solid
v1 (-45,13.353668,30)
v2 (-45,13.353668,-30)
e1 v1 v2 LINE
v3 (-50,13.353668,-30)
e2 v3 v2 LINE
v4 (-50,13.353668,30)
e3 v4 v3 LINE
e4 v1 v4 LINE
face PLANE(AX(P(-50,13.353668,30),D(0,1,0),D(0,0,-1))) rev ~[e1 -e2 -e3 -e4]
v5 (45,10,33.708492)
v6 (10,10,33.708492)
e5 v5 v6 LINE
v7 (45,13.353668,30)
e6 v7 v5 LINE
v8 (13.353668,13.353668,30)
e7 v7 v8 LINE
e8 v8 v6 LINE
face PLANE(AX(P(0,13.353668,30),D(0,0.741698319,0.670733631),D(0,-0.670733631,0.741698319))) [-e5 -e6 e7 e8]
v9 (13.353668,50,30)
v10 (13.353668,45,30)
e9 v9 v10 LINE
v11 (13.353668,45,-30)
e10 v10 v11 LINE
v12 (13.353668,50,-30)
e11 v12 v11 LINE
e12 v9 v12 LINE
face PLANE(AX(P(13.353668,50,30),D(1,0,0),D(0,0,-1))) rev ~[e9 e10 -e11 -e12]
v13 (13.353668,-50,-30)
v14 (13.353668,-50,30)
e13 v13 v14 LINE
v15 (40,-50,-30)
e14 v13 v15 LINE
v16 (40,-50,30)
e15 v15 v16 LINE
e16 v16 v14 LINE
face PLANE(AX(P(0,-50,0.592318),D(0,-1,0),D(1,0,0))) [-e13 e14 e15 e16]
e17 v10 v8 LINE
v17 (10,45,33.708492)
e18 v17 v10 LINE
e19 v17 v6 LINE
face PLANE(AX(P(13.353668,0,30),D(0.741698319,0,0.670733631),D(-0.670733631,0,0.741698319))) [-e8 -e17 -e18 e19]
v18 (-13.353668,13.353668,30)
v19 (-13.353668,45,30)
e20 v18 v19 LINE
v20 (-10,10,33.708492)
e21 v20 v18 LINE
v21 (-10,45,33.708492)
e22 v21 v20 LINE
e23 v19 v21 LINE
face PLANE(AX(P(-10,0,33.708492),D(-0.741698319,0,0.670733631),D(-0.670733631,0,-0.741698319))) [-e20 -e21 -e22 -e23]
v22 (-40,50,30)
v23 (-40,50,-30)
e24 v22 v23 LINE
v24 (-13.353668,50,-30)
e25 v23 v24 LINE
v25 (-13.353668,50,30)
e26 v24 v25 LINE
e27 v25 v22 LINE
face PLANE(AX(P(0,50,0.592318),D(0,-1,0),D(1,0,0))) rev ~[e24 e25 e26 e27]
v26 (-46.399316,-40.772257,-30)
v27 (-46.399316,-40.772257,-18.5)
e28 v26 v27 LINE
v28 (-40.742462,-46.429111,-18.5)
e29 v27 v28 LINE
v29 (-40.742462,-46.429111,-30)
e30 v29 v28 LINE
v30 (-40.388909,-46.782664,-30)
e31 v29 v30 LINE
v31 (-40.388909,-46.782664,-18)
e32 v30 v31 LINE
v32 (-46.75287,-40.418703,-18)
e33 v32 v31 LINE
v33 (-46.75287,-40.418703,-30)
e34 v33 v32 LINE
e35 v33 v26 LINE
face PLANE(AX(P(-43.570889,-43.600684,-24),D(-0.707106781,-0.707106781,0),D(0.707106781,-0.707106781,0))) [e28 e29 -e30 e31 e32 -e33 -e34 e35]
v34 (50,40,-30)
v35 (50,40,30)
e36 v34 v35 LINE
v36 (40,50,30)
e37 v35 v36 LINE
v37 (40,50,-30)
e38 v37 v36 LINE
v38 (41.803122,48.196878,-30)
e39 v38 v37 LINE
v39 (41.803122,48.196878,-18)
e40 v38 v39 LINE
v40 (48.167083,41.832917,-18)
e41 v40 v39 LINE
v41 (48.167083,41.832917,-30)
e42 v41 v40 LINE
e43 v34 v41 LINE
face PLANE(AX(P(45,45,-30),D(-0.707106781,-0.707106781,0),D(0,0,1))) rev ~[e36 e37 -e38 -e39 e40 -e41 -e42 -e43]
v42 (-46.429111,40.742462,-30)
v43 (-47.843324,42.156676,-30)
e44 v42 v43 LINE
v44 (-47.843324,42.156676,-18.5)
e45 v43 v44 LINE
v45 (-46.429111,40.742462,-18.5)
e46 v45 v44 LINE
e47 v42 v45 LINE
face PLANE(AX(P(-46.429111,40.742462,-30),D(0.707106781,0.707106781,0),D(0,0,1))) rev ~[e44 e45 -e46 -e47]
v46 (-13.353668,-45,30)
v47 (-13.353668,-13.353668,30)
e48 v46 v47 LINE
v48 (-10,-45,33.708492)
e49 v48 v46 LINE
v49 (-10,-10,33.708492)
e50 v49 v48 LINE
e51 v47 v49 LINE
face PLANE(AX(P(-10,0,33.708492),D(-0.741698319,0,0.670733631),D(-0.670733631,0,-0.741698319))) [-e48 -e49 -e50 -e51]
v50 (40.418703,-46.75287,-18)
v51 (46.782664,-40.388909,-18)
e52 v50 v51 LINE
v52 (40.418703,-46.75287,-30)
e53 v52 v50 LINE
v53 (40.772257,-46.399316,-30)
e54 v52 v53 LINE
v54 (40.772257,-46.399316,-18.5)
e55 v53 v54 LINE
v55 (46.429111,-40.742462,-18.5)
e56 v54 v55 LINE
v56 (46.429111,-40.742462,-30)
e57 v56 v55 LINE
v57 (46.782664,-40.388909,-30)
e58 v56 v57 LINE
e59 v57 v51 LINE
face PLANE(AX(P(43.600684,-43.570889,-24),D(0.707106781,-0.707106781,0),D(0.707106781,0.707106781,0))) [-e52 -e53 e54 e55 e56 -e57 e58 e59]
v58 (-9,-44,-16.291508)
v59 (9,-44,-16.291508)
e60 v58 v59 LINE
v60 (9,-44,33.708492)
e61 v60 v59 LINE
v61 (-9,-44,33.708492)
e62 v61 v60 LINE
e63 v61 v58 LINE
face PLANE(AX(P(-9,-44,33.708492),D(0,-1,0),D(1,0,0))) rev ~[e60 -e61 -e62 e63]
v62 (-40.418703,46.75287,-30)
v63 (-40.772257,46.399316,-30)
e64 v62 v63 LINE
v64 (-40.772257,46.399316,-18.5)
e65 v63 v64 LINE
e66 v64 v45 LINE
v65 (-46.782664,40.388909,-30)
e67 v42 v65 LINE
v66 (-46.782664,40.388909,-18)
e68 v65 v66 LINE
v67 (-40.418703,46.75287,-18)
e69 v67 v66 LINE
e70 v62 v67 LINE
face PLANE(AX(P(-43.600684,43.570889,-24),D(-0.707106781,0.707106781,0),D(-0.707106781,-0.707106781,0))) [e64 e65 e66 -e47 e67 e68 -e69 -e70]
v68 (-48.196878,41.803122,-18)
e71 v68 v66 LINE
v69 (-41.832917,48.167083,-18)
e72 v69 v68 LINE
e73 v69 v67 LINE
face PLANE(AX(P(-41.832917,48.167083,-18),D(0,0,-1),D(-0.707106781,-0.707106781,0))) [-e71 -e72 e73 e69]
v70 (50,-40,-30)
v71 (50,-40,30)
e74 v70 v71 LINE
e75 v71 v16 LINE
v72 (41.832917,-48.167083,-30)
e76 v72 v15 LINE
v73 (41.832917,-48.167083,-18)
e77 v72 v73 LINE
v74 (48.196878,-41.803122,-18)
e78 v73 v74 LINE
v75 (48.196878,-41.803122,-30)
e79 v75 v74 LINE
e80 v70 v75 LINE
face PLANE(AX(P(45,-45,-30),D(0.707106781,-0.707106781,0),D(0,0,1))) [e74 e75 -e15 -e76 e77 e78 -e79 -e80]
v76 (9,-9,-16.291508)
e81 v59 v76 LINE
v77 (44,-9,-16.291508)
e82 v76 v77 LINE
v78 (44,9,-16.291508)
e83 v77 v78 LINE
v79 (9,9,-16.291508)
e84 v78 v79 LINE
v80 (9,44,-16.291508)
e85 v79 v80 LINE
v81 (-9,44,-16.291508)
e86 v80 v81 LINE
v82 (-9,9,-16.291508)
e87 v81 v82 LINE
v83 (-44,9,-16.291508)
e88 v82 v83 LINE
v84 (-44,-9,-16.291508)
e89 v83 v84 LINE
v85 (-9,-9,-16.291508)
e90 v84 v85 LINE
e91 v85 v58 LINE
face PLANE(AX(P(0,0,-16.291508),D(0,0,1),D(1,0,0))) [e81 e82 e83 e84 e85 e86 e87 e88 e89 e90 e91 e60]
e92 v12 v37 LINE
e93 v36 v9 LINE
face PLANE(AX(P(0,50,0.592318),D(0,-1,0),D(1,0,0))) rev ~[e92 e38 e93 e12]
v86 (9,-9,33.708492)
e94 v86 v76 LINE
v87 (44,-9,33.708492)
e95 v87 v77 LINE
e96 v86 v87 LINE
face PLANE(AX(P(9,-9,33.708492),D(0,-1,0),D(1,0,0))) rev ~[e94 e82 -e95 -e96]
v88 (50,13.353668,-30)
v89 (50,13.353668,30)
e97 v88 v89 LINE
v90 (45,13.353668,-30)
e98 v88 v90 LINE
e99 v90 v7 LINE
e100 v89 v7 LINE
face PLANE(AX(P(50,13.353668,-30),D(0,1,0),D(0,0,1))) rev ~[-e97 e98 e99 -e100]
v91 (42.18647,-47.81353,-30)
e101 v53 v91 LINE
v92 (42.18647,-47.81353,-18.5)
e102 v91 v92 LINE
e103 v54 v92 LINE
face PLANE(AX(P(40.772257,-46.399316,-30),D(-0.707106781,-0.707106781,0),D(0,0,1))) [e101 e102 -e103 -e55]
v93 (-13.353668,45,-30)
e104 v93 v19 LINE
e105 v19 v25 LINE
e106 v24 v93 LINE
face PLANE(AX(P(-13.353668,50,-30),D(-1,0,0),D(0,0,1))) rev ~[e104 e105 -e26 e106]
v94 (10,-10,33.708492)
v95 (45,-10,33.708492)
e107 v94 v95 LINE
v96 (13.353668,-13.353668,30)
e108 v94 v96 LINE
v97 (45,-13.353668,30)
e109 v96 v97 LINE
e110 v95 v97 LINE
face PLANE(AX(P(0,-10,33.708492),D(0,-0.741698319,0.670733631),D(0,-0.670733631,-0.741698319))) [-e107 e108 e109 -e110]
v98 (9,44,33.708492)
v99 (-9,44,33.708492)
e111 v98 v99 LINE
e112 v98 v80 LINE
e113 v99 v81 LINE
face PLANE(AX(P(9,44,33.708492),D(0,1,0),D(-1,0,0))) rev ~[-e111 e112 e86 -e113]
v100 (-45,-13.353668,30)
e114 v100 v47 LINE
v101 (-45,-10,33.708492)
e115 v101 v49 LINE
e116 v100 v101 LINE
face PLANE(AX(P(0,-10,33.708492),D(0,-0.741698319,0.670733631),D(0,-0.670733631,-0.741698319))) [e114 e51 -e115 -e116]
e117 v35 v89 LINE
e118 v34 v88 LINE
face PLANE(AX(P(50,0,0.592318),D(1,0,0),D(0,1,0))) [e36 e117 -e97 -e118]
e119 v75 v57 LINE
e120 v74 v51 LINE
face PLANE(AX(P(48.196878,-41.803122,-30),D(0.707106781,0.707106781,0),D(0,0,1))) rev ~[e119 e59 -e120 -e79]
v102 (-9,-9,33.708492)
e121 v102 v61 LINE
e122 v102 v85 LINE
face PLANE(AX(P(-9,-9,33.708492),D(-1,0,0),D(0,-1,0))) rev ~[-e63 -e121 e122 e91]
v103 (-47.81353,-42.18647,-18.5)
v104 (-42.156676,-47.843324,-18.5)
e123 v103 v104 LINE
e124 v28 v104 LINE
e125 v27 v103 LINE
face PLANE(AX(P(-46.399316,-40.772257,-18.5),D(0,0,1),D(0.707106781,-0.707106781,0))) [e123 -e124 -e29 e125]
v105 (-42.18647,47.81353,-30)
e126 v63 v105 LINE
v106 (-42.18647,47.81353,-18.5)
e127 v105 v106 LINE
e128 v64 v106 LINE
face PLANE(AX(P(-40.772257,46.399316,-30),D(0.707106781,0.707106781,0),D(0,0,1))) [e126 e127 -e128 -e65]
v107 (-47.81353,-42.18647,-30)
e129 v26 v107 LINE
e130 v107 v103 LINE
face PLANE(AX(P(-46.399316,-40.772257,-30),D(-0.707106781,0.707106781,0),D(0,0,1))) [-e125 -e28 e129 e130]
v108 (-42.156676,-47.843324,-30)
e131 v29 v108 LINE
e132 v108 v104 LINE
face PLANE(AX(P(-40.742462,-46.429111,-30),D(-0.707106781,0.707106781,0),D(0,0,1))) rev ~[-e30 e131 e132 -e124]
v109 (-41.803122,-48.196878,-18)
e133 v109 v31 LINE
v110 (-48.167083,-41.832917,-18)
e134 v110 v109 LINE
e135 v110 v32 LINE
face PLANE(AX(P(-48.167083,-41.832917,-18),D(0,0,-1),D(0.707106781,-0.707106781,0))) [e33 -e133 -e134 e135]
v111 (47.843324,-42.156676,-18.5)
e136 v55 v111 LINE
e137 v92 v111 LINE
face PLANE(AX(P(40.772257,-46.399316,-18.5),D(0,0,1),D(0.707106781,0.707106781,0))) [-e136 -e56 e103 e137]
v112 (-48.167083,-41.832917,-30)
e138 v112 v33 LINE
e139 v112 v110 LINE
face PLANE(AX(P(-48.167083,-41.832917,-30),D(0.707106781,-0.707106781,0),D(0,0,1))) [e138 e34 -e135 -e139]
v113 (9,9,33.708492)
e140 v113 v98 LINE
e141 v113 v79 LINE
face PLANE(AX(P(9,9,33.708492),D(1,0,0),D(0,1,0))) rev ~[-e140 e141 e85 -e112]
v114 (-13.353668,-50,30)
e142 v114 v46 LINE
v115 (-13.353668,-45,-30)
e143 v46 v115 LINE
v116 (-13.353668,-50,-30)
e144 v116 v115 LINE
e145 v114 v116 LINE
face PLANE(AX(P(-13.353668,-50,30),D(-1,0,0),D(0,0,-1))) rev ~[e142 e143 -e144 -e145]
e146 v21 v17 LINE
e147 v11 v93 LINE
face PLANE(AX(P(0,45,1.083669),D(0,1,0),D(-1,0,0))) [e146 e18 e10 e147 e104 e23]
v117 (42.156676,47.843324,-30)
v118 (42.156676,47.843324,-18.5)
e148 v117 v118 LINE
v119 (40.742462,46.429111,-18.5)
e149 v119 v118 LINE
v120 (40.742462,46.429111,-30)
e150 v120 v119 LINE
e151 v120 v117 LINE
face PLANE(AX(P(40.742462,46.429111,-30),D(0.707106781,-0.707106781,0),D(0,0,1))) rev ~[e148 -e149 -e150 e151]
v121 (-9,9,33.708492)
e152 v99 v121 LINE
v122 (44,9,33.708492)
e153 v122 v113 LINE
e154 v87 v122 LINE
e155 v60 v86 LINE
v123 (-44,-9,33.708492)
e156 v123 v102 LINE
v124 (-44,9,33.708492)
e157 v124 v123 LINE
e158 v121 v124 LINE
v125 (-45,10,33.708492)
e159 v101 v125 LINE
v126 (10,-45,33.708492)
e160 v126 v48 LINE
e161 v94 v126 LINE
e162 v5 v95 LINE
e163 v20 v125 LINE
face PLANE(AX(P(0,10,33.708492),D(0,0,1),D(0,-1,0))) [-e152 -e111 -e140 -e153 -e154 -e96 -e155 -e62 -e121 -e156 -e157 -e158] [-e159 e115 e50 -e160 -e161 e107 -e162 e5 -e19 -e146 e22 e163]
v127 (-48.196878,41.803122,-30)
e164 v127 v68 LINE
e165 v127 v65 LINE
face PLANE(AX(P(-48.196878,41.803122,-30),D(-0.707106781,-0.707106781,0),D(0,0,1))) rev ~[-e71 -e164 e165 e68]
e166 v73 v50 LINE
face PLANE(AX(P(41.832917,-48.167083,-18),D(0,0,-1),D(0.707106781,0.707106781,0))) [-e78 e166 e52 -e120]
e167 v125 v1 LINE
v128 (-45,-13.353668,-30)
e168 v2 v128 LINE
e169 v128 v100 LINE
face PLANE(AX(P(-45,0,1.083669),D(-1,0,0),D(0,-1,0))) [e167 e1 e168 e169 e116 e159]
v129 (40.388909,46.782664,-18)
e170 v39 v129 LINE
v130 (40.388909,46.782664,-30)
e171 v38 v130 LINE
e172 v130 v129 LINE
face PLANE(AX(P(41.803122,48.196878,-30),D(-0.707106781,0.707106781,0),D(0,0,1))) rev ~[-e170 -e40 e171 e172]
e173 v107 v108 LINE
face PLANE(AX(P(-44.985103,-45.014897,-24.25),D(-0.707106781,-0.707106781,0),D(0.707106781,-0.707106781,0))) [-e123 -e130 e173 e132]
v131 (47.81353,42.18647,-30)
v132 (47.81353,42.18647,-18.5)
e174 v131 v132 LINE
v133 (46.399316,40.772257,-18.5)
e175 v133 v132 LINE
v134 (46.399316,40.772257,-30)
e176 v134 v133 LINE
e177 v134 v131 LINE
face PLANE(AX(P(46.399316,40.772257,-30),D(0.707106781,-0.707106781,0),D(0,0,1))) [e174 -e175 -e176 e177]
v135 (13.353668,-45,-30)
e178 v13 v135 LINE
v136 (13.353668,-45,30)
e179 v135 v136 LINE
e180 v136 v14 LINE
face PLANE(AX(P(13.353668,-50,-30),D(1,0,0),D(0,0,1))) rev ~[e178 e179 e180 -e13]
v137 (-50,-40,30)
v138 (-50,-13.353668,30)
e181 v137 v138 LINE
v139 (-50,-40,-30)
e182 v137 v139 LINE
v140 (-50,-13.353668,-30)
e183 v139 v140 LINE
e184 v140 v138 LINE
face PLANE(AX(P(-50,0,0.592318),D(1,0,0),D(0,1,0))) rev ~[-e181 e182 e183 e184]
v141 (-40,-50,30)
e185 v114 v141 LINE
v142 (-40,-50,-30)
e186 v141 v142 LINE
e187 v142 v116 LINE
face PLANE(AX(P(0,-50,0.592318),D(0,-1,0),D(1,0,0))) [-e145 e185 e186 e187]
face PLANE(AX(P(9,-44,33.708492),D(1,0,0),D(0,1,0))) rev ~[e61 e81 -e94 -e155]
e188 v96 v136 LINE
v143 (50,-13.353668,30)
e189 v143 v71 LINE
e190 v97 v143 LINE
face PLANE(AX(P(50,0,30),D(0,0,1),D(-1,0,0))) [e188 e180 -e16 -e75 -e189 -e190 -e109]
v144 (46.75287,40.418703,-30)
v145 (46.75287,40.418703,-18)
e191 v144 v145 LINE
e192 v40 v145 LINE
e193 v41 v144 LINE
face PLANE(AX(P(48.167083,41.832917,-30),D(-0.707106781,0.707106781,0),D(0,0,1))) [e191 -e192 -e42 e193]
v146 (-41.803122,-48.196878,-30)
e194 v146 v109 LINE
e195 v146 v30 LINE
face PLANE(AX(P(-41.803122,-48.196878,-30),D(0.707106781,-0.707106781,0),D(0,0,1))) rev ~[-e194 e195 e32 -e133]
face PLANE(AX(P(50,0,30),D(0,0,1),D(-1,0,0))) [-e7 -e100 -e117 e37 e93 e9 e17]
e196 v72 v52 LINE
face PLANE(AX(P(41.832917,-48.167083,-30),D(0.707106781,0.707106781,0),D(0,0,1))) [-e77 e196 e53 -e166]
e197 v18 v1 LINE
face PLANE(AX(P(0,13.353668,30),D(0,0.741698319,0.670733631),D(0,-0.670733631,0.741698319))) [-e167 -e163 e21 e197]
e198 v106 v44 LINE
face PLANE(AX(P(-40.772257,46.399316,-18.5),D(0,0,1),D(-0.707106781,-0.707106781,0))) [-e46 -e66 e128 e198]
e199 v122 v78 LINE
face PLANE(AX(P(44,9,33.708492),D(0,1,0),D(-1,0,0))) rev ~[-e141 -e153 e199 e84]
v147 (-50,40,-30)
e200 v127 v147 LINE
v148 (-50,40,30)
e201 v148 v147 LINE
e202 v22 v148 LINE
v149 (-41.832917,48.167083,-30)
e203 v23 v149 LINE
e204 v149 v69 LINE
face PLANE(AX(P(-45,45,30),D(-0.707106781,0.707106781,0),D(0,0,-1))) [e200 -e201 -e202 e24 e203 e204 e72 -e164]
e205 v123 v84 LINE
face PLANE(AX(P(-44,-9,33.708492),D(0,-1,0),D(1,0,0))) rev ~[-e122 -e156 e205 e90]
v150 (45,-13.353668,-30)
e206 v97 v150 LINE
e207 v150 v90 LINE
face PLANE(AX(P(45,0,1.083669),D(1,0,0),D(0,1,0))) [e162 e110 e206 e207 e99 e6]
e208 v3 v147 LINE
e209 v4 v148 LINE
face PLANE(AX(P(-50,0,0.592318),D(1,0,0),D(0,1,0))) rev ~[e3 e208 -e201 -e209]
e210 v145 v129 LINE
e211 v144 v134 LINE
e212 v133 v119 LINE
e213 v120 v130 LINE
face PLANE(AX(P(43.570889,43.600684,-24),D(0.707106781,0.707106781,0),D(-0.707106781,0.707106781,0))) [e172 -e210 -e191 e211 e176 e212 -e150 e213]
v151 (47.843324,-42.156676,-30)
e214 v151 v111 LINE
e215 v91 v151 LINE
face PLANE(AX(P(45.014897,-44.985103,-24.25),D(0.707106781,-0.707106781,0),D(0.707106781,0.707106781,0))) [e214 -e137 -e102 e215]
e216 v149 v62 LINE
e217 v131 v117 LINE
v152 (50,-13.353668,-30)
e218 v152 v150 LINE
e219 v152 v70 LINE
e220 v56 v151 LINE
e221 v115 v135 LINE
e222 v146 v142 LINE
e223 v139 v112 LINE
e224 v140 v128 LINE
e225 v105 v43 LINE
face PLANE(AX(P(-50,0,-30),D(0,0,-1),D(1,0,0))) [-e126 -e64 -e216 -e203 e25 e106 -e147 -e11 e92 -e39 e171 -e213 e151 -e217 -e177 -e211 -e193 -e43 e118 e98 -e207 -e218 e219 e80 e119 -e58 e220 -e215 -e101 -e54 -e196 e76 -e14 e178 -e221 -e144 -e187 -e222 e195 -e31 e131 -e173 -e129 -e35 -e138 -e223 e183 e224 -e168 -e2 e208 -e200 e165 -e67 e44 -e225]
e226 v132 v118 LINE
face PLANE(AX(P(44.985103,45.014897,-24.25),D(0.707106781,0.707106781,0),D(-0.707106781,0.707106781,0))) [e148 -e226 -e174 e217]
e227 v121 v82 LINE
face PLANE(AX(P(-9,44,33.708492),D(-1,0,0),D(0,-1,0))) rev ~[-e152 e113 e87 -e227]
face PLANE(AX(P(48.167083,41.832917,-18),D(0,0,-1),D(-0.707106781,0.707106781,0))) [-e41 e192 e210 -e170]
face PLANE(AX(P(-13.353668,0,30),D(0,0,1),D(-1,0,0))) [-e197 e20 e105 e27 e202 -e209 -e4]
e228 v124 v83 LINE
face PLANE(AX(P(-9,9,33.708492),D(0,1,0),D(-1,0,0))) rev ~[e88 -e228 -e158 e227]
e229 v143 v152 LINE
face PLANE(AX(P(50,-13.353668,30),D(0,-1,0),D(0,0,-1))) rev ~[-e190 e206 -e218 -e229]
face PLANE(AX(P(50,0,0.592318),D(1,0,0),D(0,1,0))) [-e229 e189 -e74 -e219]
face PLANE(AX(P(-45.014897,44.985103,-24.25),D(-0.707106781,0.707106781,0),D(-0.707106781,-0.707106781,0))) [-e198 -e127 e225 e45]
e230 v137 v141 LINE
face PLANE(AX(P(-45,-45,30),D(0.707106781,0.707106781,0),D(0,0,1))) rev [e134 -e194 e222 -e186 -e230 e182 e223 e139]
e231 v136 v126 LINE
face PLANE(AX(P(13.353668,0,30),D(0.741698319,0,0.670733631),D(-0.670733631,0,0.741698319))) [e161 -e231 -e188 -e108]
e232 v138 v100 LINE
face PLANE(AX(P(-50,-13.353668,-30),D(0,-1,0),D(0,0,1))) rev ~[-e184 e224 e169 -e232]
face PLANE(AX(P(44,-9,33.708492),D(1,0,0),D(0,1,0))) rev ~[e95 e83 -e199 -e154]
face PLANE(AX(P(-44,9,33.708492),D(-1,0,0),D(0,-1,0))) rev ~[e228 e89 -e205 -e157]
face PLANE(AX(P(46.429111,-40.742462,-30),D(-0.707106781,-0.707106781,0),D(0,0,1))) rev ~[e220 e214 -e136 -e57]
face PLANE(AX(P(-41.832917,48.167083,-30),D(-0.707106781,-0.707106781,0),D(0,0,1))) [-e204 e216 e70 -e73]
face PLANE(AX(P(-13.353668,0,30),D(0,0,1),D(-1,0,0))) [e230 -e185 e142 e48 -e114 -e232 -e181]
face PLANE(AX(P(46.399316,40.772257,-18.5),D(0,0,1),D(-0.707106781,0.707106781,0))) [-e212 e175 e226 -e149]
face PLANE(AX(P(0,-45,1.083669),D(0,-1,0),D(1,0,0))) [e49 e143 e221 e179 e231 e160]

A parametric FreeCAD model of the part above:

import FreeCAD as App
import Part
import Sketcher

V = App.Vector
Q = App.Units.Quantity


def edges_at(feature, points):
    """Names of the edges that pass closest to the given points."""
    edges = feature.Shape.Edges
    near = lambda p: min(range(len(edges)), key=lambda i: edges[i].distToShape(Part.Vertex(*p))[0])
    return sorted({f"Edge{near(p) + 1}" for p in points})

doc = App.newDocument("Part")
body = doc.addObject("PartDesign::Body", "Body")

sketch1 = body.newObject("Sketcher::SketchObject", "Sketch")
sketch1.AttachmentSupport = (doc.getObject("XZ_Plane"), [""])
sketch1.MapMode = "FlatFace"
sketch1.addGeometry([
    Part.LineSegment(V(-50, -30, 0), V(50, -30, 0)),
    Part.LineSegment(V(50, -30, 0), V(50, 30, 0)),
    Part.LineSegment(V(50, 30, 0), V(13.353668, 30, 0)),
    Part.LineSegment(V(13.353668, 30, 0), V(10, 33.708492, 0)),
    Part.LineSegment(V(10, 33.708492, 0), V(-10, 33.708492, 0)),
    Part.LineSegment(V(-10, 33.708492, 0), V(-13.353668, 30, 0)),
    Part.LineSegment(V(-13.353668, 30, 0), V(-50, 30, 0)),
    Part.LineSegment(V(-50, 30, 0), V(-50, -30, 0)),
], False)
sketch1.addConstraint([
    Sketcher.Constraint("Coincident", 0, 2, 1, 1),
    Sketcher.Constraint("Coincident", 1, 2, 2, 1),
    Sketcher.Constraint("Coincident", 2, 2, 3, 1),
    Sketcher.Constraint("Coincident", 3, 2, 4, 1),
    Sketcher.Constraint("Coincident", 4, 2, 5, 1),
    Sketcher.Constraint("Coincident", 5, 2, 6, 1),
    Sketcher.Constraint("Coincident", 6, 2, 7, 1),
    Sketcher.Constraint("Coincident", 7, 2, 0, 1),
    Sketcher.Constraint("Horizontal", 0),
    Sketcher.Constraint("Vertical", 1),
    Sketcher.Constraint("Horizontal", 2),
    Sketcher.Constraint("Horizontal", 4),
    Sketcher.Constraint("Horizontal", 6),
    Sketcher.Constraint("Vertical", 7),
    Sketcher.Constraint("Symmetric", 0, 2, 6, 2, -1, 1),
    Sketcher.Constraint("Symmetric", 2, 2, 5, 2, -2),
    Sketcher.Constraint("Equal", 3, 5),
    Sketcher.Constraint("DistanceX", 0, 1, 0, 2, Q("100 mm")),
    Sketcher.Constraint("DistanceX", 4, 2, 4, 1, Q("20 mm")),
    Sketcher.Constraint("DistanceY", 1, 1, 1, 2, Q("60 mm")),
    Sketcher.Constraint("Distance", 3, Q("5 mm")),
    Sketcher.Constraint("DistanceX", 2, 2, 2, 1, Q("36.646332 mm")),
])
pad1 = body.newObject("PartDesign::Pad", "Pad")
pad1.Profile = sketch1
pad1.Length = 100
pad1.Midplane = True

sketch2 = body.newObject("Sketcher::SketchObject", "Sketch001")
sketch2.AttachmentSupport = (doc.getObject("YZ_Plane"), [""])
sketch2.MapMode = "FlatFace"
sketch2.addGeometry([
    Part.LineSegment(V(10, 33.708492, 0), V(-10, 33.708492, 0)),
    Part.LineSegment(V(-10, 33.708492, 0), V(-13.353668, 30, 0)),
    Part.LineSegment(V(-13.353668, 30, 0), V(-50, 30, 0)),
    Part.LineSegment(V(-50, 30, 0), V(-50, -30, 0)),
    Part.LineSegment(V(-50, -30, 0), V(50, -30, 0)),
    Part.LineSegment(V(50, -30, 0), V(50, 30, 0)),
    Part.LineSegment(V(50, 30, 0), V(13.353668, 30, 0)),
    Part.LineSegment(V(13.353668, 30, 0), V(10, 33.708492, 0)),
], False)
sketch2.addConstraint([
    Sketcher.Constraint("Coincident", 0, 2, 1, 1),
    Sketcher.Constraint("Coincident", 1, 2, 2, 1),
    Sketcher.Constraint("Coincident", 2, 2, 3, 1),
    Sketcher.Constraint("Coincident", 3, 2, 4, 1),
    Sketcher.Constraint("Coincident", 4, 2, 5, 1),
    Sketcher.Constraint("Coincident", 5, 2, 6, 1),
    Sketcher.Constraint("Coincident", 6, 2, 7, 1),
    Sketcher.Constraint("Coincident", 7, 2, 0, 1),
    Sketcher.Constraint("Horizontal", 0),
    Sketcher.Constraint("Horizontal", 2),
    Sketcher.Constraint("Vertical", 3),
    Sketcher.Constraint("Horizontal", 4),
    Sketcher.Constraint("Vertical", 5),
    Sketcher.Constraint("Horizontal", 6),
    Sketcher.Constraint("Symmetric", 2, 2, 4, 2, -1, 1),
    Sketcher.Constraint("Symmetric", 1, 2, 6, 2, -2),
    Sketcher.Constraint("Equal", 1, 7),
    Sketcher.Constraint("DistanceX", 0, 2, 0, 1, Q("20 mm")),
    Sketcher.Constraint("DistanceX", 4, 1, 4, 2, Q("100 mm")),
    Sketcher.Constraint("DistanceY", 3, 2, 3, 1, Q("60 mm")),
    Sketcher.Constraint("Distance", 1, Q("5 mm")),
    Sketcher.Constraint("DistanceX", 2, 2, 2, 1, Q("36.646332 mm")),
])
pad2 = body.newObject("PartDesign::Pad", "Pad001")
pad2.Profile = sketch2
pad2.Length = 100
pad2.Midplane = True

sketch3 = body.newObject("Sketcher::SketchObject", "Sketch002")
sketch3.AttachmentSupport = (doc.getObject("YZ_Plane"), [""])
sketch3.MapMode = "FlatFace"
sketch3.AttachmentOffset = App.Placement(V(0, 0, -50), App.Rotation())
sketch3.addGeometry([
    Part.LineSegment(V(-10, 33.708492, 0), V(10, 33.708492, 0)),
    Part.LineSegment(V(10, 33.708492, 0), V(13.353668, 30, 0)),
    Part.LineSegment(V(13.353668, 30, 0), V(13.353668, -30, 0)),
    Part.LineSegment(V(13.353668, -30, 0), V(-13.353668, -30, 0)),
    Part.LineSegment(V(-13.353668, -30, 0), V(-13.353668, 30, 0)),
    Part.LineSegment(V(-13.353668, 30, 0), V(-10, 33.708492, 0)),
], False)
sketch3.addConstraint([
    Sketcher.Constraint("Coincident", 0, 2, 1, 1),
    Sketcher.Constraint("Coincident", 1, 2, 2, 1),
    Sketcher.Constraint("Coincident", 2, 2, 3, 1),
    Sketcher.Constraint("Coincident", 3, 2, 4, 1),
    Sketcher.Constraint("Coincident", 4, 2, 5, 1),
    Sketcher.Constraint("Coincident", 5, 2, 0, 1),
    Sketcher.Constraint("Horizontal", 0),
    Sketcher.Constraint("Vertical", 2),
    Sketcher.Constraint("Horizontal", 3),
    Sketcher.Constraint("Vertical", 4),
    Sketcher.Constraint("Symmetric", 1, 2, 3, 2, -1, 1),
    Sketcher.Constraint("Horizontal", 1, 2, 4, 2),
    Sketcher.Constraint("Equal", 1, 5),
    Sketcher.Constraint("DistanceX", 0, 1, 0, 2, Q("20 mm")),
    Sketcher.Constraint("DistanceY", 2, 2, 2, 1, Q("60 mm")),
    Sketcher.Constraint("Distance", 1, Q("5 mm")),
    Sketcher.Constraint("DistanceX", 3, 2, 3, 1, Q("26.707336 mm")),
])
pocket1 = body.newObject("PartDesign::Pocket", "Pocket")
pocket1.Profile = sketch3
pocket1.Length = 5
pocket1.Reversed = True

sketch4 = body.newObject("Sketcher::SketchObject", "Sketch003")
sketch4.AttachmentSupport = (doc.getObject("XZ_Plane"), [""])
sketch4.MapMode = "FlatFace"
sketch4.AttachmentOffset = App.Placement(V(0, 0, 50), App.Rotation())
sketch4.addGeometry([
    Part.LineSegment(V(-10, 33.708492, 0), V(-13.353668, 30, 0)),
    Part.LineSegment(V(-13.353668, 30, 0), V(-13.353668, -30, 0)),
    Part.LineSegment(V(-13.353668, -30, 0), V(13.353668, -30, 0)),
    Part.LineSegment(V(13.353668, -30, 0), V(13.353668, 30, 0)),
    Part.LineSegment(V(13.353668, 30, 0), V(10, 33.708492, 0)),
    Part.LineSegment(V(10, 33.708492, 0), V(-10, 33.708492, 0)),
], False)
sketch4.addConstraint([
    Sketcher.Constraint("Coincident", 0, 2, 1, 1),
    Sketcher.Constraint("Coincident", 1, 2, 2, 1),
    Sketcher.Constraint("Coincident", 2, 2, 3, 1),
    Sketcher.Constraint("Coincident", 3, 2, 4, 1),
    Sketcher.Constraint("Coincident", 4, 2, 5, 1),
    Sketcher.Constraint("Coincident", 5, 2, 0, 1),
    Sketcher.Constraint("Vertical", 1),
    Sketcher.Constraint("Horizontal", 2),
    Sketcher.Constraint("Vertical", 3),
    Sketcher.Constraint("Horizontal", 5),
    Sketcher.Constraint("Symmetric", 0, 2, 2, 2, -1, 1),
    Sketcher.Constraint("Horizontal", 0, 2, 3, 2),
    Sketcher.Constraint("Equal", 0, 4),
    Sketcher.Constraint("DistanceX", 5, 2, 5, 1, Q("20 mm")),
    Sketcher.Constraint("DistanceY", 1, 2, 1, 1, Q("60 mm")),
    Sketcher.Constraint("Distance", 0, Q("5 mm")),
    Sketcher.Constraint("DistanceX", 2, 1, 2, 2, Q("26.707336 mm")),
])
pocket2 = body.newObject("PartDesign::Pocket", "Pocket001")
pocket2.Profile = sketch4
pocket2.Length = 5

sketch5 = body.newObject("Sketcher::SketchObject", "Sketch004")
sketch5.AttachmentSupport = (doc.getObject("YZ_Plane"), [""])
sketch5.MapMode = "FlatFace"
sketch5.AttachmentOffset = App.Placement(V(0, 0, 50), App.Rotation())
sketch5.addGeometry([
    Part.LineSegment(V(-10, 33.708492, 0), V(-13.353668, 30, 0)),
    Part.LineSegment(V(-13.353668, 30, 0), V(-13.353668, -30, 0)),
    Part.LineSegment(V(-13.353668, -30, 0), V(13.353668, -30, 0)),
    Part.LineSegment(V(13.353668, -30, 0), V(13.353668, 30, 0)),
    Part.LineSegment(V(13.353668, 30, 0), V(10, 33.708492, 0)),
    Part.LineSegment(V(10, 33.708492, 0), V(-10, 33.708492, 0)),
], False)
sketch5.addConstraint([
    Sketcher.Constraint("Coincident", 0, 2, 1, 1),
    Sketcher.Constraint("Coincident", 1, 2, 2, 1),
    Sketcher.Constraint("Coincident", 2, 2, 3, 1),
    Sketcher.Constraint("Coincident", 3, 2, 4, 1),
    Sketcher.Constraint("Coincident", 4, 2, 5, 1),
    Sketcher.Constraint("Coincident", 5, 2, 0, 1),
    Sketcher.Constraint("Vertical", 1),
    Sketcher.Constraint("Horizontal", 2),
    Sketcher.Constraint("Vertical", 3),
    Sketcher.Constraint("Horizontal", 5),
    Sketcher.Constraint("Symmetric", 0, 2, 2, 2, -1, 1),
    Sketcher.Constraint("Horizontal", 0, 2, 3, 2),
    Sketcher.Constraint("Equal", 0, 4),
    Sketcher.Constraint("DistanceX", 5, 2, 5, 1, Q("20 mm")),
    Sketcher.Constraint("DistanceY", 1, 2, 1, 1, Q("60 mm")),
    Sketcher.Constraint("Distance", 0, Q("5 mm")),
    Sketcher.Constraint("DistanceX", 2, 1, 2, 2, Q("26.707336 mm")),
])
pocket3 = body.newObject("PartDesign::Pocket", "Pocket002")
pocket3.Profile = sketch5
pocket3.Length = 5

sketch6 = body.newObject("Sketcher::SketchObject", "Sketch005")
sketch6.AttachmentSupport = (doc.getObject("XZ_Plane"), [""])
sketch6.MapMode = "FlatFace"
sketch6.AttachmentOffset = App.Placement(V(0, 0, -50), App.Rotation())
sketch6.addGeometry([
    Part.LineSegment(V(10, 33.708492, 0), V(13.353668, 30, 0)),
    Part.LineSegment(V(13.353668, 30, 0), V(13.353668, -30, 0)),
    Part.LineSegment(V(13.353668, -30, 0), V(-13.353668, -30, 0)),
    Part.LineSegment(V(-13.353668, -30, 0), V(-13.353668, 30, 0)),
    Part.LineSegment(V(-13.353668, 30, 0), V(-10, 33.708492, 0)),
    Part.LineSegment(V(-10, 33.708492, 0), V(10, 33.708492, 0)),
], False)
sketch6.addConstraint([
    Sketcher.Constraint("Coincident", 0, 2, 1, 1),
    Sketcher.Constraint("Coincident", 1, 2, 2, 1),
    Sketcher.Constraint("Coincident", 2, 2, 3, 1),
    Sketcher.Constraint("Coincident", 3, 2, 4, 1),
    Sketcher.Constraint("Coincident", 4, 2, 5, 1),
    Sketcher.Constraint("Coincident", 5, 2, 0, 1),
    Sketcher.Constraint("Vertical", 1),
    Sketcher.Constraint("Horizontal", 2),
    Sketcher.Constraint("Vertical", 3),
    Sketcher.Constraint("Horizontal", 5),
    Sketcher.Constraint("Symmetric", 0, 2, 2, 2, -1, 1),
    Sketcher.Constraint("Horizontal", 0, 2, 3, 2),
    Sketcher.Constraint("Equal", 0, 4),
    Sketcher.Constraint("DistanceX", 5, 1, 5, 2, Q("20 mm")),
    Sketcher.Constraint("DistanceY", 1, 2, 1, 1, Q("60 mm")),
    Sketcher.Constraint("Distance", 0, Q("5 mm")),
    Sketcher.Constraint("DistanceX", 2, 2, 2, 1, Q("26.707336 mm")),
])
pocket4 = body.newObject("PartDesign::Pocket", "Pocket003")
pocket4.Profile = sketch6
pocket4.Length = 5
pocket4.Reversed = True
doc.recompute()

chamfer = body.newObject("PartDesign::Chamfer", "Chamfer")
chamfer.Base = (pocket4, edges_at(pocket4, [
    (50, -50, 0),
    (50, 50, 0),
    (-50, 50, 0),
    (-50, -50, 0),
]))
chamfer.Size = 10

sketch7 = body.newObject("Sketcher::SketchObject", "Sketch006")
sketch7.Placement = App.Placement(V(-45, 45, 0), App.Rotation(V(-0.707106781, -0.707106781, 0), V(0, 0, 0.999999999), V(-0.707106781, 0.707106781, 0), "ZXY"))
sketch7.addGeometry([
    Part.LineSegment(V(-4.478932, -18, 0), V(-4.478932, -30, 0)),
    Part.LineSegment(V(-4.478932, -30, 0), V(4.521068, -30, 0)),
    Part.LineSegment(V(4.521068, -30, 0), V(4.521068, -18, 0)),
    Part.LineSegment(V(4.521068, -18, 0), V(-4.478932, -18, 0)),
], False)
sketch7.addConstraint([
    Sketcher.Constraint("Coincident", 0, 2, 1, 1),
    Sketcher.Constraint("Coincident", 1, 2, 2, 1),
    Sketcher.Constraint("Coincident", 2, 2, 3, 1),
    Sketcher.Constraint("Coincident", 3, 2, 0, 1),
    Sketcher.Constraint("Vertical", 0),
    Sketcher.Constraint("Horizontal", 1),
    Sketcher.Constraint("Vertical", 2),
    Sketcher.Constraint("Horizontal", 3),
    Sketcher.Constraint("DistanceX", 1, 1, 1, 2, Q("9 mm")),
    Sketcher.Constraint("DistanceY", 0, 2, 0, 1, Q("12 mm")),
    Sketcher.Constraint("DistanceY", 0, 2, -1, 1, Q("30 mm")),
    Sketcher.Constraint("DistanceX", 0, 2, -1, 1, Q("4.478932 mm")),
])
pocket5 = body.newObject("PartDesign::Pocket", "Pocket004")
pocket5.Profile = sketch7
pocket5.Length = 2

sketch8 = body.newObject("Sketcher::SketchObject", "Sketch007")
sketch8.Placement = App.Placement(V(-43.585786, 43.585786, 0), App.Rotation(V(-0.707106781, -0.707106781, 0), V(0, 0, 0.999999999), V(-0.707106781, 0.707106781, 0), "ZXY"))
sketch8.addGeometry([
    Part.LineSegment(V(-3.978932, -18.5, 0), V(-3.978932, -30, 0)),
    Part.LineSegment(V(-3.978932, -30, 0), V(4.021068, -30, 0)),
    Part.LineSegment(V(4.021068, -30, 0), V(4.021068, -18.5, 0)),
    Part.LineSegment(V(4.021068, -18.5, 0), V(-3.978932, -18.5, 0)),
], False)
sketch8.addConstraint([
    Sketcher.Constraint("Coincident", 0, 2, 1, 1),
    Sketcher.Constraint("Coincident", 1, 2, 2, 1),
    Sketcher.Constraint("Coincident", 2, 2, 3, 1),
    Sketcher.Constraint("Coincident", 3, 2, 0, 1),
    Sketcher.Constraint("Vertical", 0),
    Sketcher.Constraint("Horizontal", 1),
    Sketcher.Constraint("Vertical", 2),
    Sketcher.Constraint("Horizontal", 3),
    Sketcher.Constraint("DistanceX", 1, 1, 1, 2, Q("8 mm")),
    Sketcher.Constraint("DistanceY", 0, 2, 0, 1, Q("11.5 mm")),
    Sketcher.Constraint("DistanceY", 0, 2, -1, 1, Q("30 mm")),
    Sketcher.Constraint("DistanceX", 0, 2, -1, 1, Q("3.978932 mm")),
])
pad3 = body.newObject("PartDesign::Pad", "Pad002")
pad3.Profile = sketch8
pad3.Length = 2

sketch9 = body.newObject("Sketcher::SketchObject", "Sketch008")
sketch9.Placement = App.Placement(V(-45, -45, 0), App.Rotation(V(0.707106781, -0.707106781, 0), V(0, 0, 0.999999999), V(-0.707106781, -0.707106781, 0), "ZXY"))
sketch9.addGeometry([
    Part.LineSegment(V(-4.478932, -18, 0), V(-4.478932, -30, 0)),
    Part.LineSegment(V(-4.478932, -30, 0), V(4.521068, -30, 0)),
    Part.LineSegment(V(4.521068, -30, 0), V(4.521068, -18, 0)),
    Part.LineSegment(V(4.521068, -18, 0), V(-4.478932, -18, 0)),
], False)
sketch9.addConstraint([
    Sketcher.Constraint("Coincident", 0, 2, 1, 1),
    Sketcher.Constraint("Coincident", 1, 2, 2, 1),
    Sketcher.Constraint("Coincident", 2, 2, 3, 1),
    Sketcher.Constraint("Coincident", 3, 2, 0, 1),
    Sketcher.Constraint("Vertical", 0),
    Sketcher.Constraint("Horizontal", 1),
    Sketcher.Constraint("Vertical", 2),
    Sketcher.Constraint("Horizontal", 3),
    Sketcher.Constraint("DistanceX", 1, 1, 1, 2, Q("9 mm")),
    Sketcher.Constraint("DistanceY", 0, 2, 0, 1, Q("12 mm")),
    Sketcher.Constraint("DistanceY", 0, 2, -1, 1, Q("30 mm")),
    Sketcher.Constraint("DistanceX", 0, 2, -1, 1, Q("4.478932 mm")),
])
pocket6 = body.newObject("PartDesign::Pocket", "Pocket005")
pocket6.Profile = sketch9
pocket6.Length = 2

sketch10 = body.newObject("Sketcher::SketchObject", "Sketch009")
sketch10.Placement = App.Placement(V(45, -45, 0), App.Rotation(V(0.707106781, 0.707106781, 0), V(0, 0, 0.999999999), V(0.707106781, -0.707106781, 0), "ZXY"))
sketch10.addGeometry([
    Part.LineSegment(V(-4.478932, -18, 0), V(-4.478932, -30, 0)),
    Part.LineSegment(V(-4.478932, -30, 0), V(4.521068, -30, 0)),
    Part.LineSegment(V(4.521068, -30, 0), V(4.521068, -18, 0)),
    Part.LineSegment(V(4.521068, -18, 0), V(-4.478932, -18, 0)),
], False)
sketch10.addConstraint([
    Sketcher.Constraint("Coincident", 0, 2, 1, 1),
    Sketcher.Constraint("Coincident", 1, 2, 2, 1),
    Sketcher.Constraint("Coincident", 2, 2, 3, 1),
    Sketcher.Constraint("Coincident", 3, 2, 0, 1),
    Sketcher.Constraint("Vertical", 0),
    Sketcher.Constraint("Horizontal", 1),
    Sketcher.Constraint("Vertical", 2),
    Sketcher.Constraint("Horizontal", 3),
    Sketcher.Constraint("DistanceX", 1, 1, 1, 2, Q("9 mm")),
    Sketcher.Constraint("DistanceY", 0, 2, 0, 1, Q("12 mm")),
    Sketcher.Constraint("DistanceY", 0, 2, -1, 1, Q("30 mm")),
    Sketcher.Constraint("DistanceX", 0, 2, -1, 1, Q("4.478932 mm")),
])
pocket7 = body.newObject("PartDesign::Pocket", "Pocket006")
pocket7.Profile = sketch10
pocket7.Length = 2

sketch11 = body.newObject("Sketcher::SketchObject", "Sketch010")
sketch11.Placement = App.Placement(V(43.585786, -43.585786, 0), App.Rotation(V(0.707106781, 0.707106781, 0), V(0, 0, 0.999999999), V(0.707106781, -0.707106781, 0), "ZXY"))
sketch11.addGeometry([
    Part.LineSegment(V(-3.978932, -18.5, 0), V(-3.978932, -30, 0)),
    Part.LineSegment(V(-3.978932, -30, 0), V(4.021068, -30, 0)),
    Part.LineSegment(V(4.021068, -30, 0), V(4.021068, -18.5, 0)),
    Part.LineSegment(V(4.021068, -18.5, 0), V(-3.978932, -18.5, 0)),
], False)
sketch11.addConstraint([
    Sketcher.Constraint("Coincident", 0, 2, 1, 1),
    Sketcher.Constraint("Coincident", 1, 2, 2, 1),
    Sketcher.Constraint("Coincident", 2, 2, 3, 1),
    Sketcher.Constraint("Coincident", 3, 2, 0, 1),
    Sketcher.Constraint("Vertical", 0),
    Sketcher.Constraint("Horizontal", 1),
    Sketcher.Constraint("Vertical", 2),
    Sketcher.Constraint("Horizontal", 3),
    Sketcher.Constraint("DistanceX", 1, 1, 1, 2, Q("8 mm")),
    Sketcher.Constraint("DistanceY", 0, 2, 0, 1, Q("11.5 mm")),
    Sketcher.Constraint("DistanceY", 0, 2, -1, 1, Q("30 mm")),
    Sketcher.Constraint("DistanceX", 0, 2, -1, 1, Q("3.978932 mm")),
])
pad4 = body.newObject("PartDesign::Pad", "Pad003")
pad4.Profile = sketch11
pad4.Length = 2

sketch12 = body.newObject("Sketcher::SketchObject", "Sketch011")
sketch12.Placement = App.Placement(V(45, 45, 0), App.Rotation(V(-0.707106781, 0.707106781, 0), V(0, 0, 0.999999999), V(0.707106781, 0.707106781, 0), "ZXY"))
sketch12.addGeometry([
    Part.LineSegment(V(-4.478932, -18, 0), V(-4.478932, -30, 0)),
    Part.LineSegment(V(-4.478932, -30, 0), V(4.521068, -30, 0)),
    Part.LineSegment(V(4.521068, -30, 0), V(4.521068, -18, 0)),
    Part.LineSegment(V(4.521068, -18, 0), V(-4.478932, -18, 0)),
], False)
sketch12.addConstraint([
    Sketcher.Constraint("Coincident", 0, 2, 1, 1),
    Sketcher.Constraint("Coincident", 1, 2, 2, 1),
    Sketcher.Constraint("Coincident", 2, 2, 3, 1),
    Sketcher.Constraint("Coincident", 3, 2, 0, 1),
    Sketcher.Constraint("Vertical", 0),
    Sketcher.Constraint("Horizontal", 1),
    Sketcher.Constraint("Vertical", 2),
    Sketcher.Constraint("Horizontal", 3),
    Sketcher.Constraint("DistanceX", 1, 1, 1, 2, Q("9 mm")),
    Sketcher.Constraint("DistanceY", 0, 2, 0, 1, Q("12 mm")),
    Sketcher.Constraint("DistanceY", 0, 2, -1, 1, Q("30 mm")),
    Sketcher.Constraint("DistanceX", 0, 2, -1, 1, Q("4.478932 mm")),
])
pocket8 = body.newObject("PartDesign::Pocket", "Pocket007")
pocket8.Profile = sketch12
pocket8.Length = 2

sketch13 = body.newObject("Sketcher::SketchObject", "Sketch012")
sketch13.Placement = App.Placement(V(43.585786, 43.585786, 0), App.Rotation(V(-0.707106781, 0.707106781, 0), V(0, 0, 0.999999999), V(0.707106781, 0.707106781, 0), "ZXY"))
sketch13.addGeometry([
    Part.LineSegment(V(-3.978932, -18.5, 0), V(-3.978932, -30, 0)),
    Part.LineSegment(V(-3.978932, -30, 0), V(4.021068, -30, 0)),
    Part.LineSegment(V(4.021068, -30, 0), V(4.021068, -18.5, 0)),
    Part.LineSegment(V(4.021068, -18.5, 0), V(-3.978932, -18.5, 0)),
], False)
sketch13.addConstraint([
    Sketcher.Constraint("Coincident", 0, 2, 1, 1),
    Sketcher.Constraint("Coincident", 1, 2, 2, 1),
    Sketcher.Constraint("Coincident", 2, 2, 3, 1),
    Sketcher.Constraint("Coincident", 3, 2, 0, 1),
    Sketcher.Constraint("Vertical", 0),
    Sketcher.Constraint("Horizontal", 1),
    Sketcher.Constraint("Vertical", 2),
    Sketcher.Constraint("Horizontal", 3),
    Sketcher.Constraint("DistanceX", 1, 1, 1, 2, Q("8 mm")),
    Sketcher.Constraint("DistanceY", 0, 2, 0, 1, Q("11.5 mm")),
    Sketcher.Constraint("DistanceY", 0, 2, -1, 1, Q("30 mm")),
    Sketcher.Constraint("DistanceX", 0, 2, -1, 1, Q("3.978932 mm")),
])
pad5 = body.newObject("PartDesign::Pad", "Pad004")
pad5.Profile = sketch13
pad5.Length = 2

sketch14 = body.newObject("Sketcher::SketchObject", "Sketch013")
sketch14.Placement = App.Placement(V(-43.585786, -43.585786, 0), App.Rotation(V(0.707106781, -0.707106781, 0), V(0, 0, 0.999999999), V(-0.707106781, -0.707106781, 0), "ZXY"))
sketch14.addGeometry([
    Part.LineSegment(V(-3.978932, -18.5, 0), V(-3.978932, -30, 0)),
    Part.LineSegment(V(-3.978932, -30, 0), V(4.021068, -30, 0)),
    Part.LineSegment(V(4.021068, -30, 0), V(4.021068, -18.5, 0)),
    Part.LineSegment(V(4.021068, -18.5, 0), V(-3.978932, -18.5, 0)),
], False)
sketch14.addConstraint([
    Sketcher.Constraint("Coincident", 0, 2, 1, 1),
    Sketcher.Constraint("Coincident", 1, 2, 2, 1),
    Sketcher.Constraint("Coincident", 2, 2, 3, 1),
    Sketcher.Constraint("Coincident", 3, 2, 0, 1),
    Sketcher.Constraint("Vertical", 0),
    Sketcher.Constraint("Horizontal", 1),
    Sketcher.Constraint("Vertical", 2),
    Sketcher.Constraint("Horizontal", 3),
    Sketcher.Constraint("DistanceX", 1, 1, 1, 2, Q("8 mm")),
    Sketcher.Constraint("DistanceY", 0, 2, 0, 1, Q("11.5 mm")),
    Sketcher.Constraint("DistanceY", 0, 2, -1, 1, Q("30 mm")),
    Sketcher.Constraint("DistanceX", 0, 2, -1, 1, Q("3.978932 mm")),
])
pad6 = body.newObject("PartDesign::Pad", "Pad005")
pad6.Profile = sketch14
pad6.Length = 2

sketch15 = body.newObject("Sketcher::SketchObject", "Sketch014")
sketch15.AttachmentSupport = (doc.getObject("XY_Plane"), [""])
sketch15.MapMode = "FlatFace"
sketch15.AttachmentOffset = App.Placement(V(0, 0, 33.708492), App.Rotation())
sketch15.addGeometry([
    Part.LineSegment(V(-44, 9, 0), V(-44, -9, 0)),
    Part.LineSegment(V(-44, -9, 0), V(-9, -9, 0)),
    Part.LineSegment(V(-9, -9, 0), V(-9, -44, 0)),
    Part.LineSegment(V(-9, -44, 0), V(9, -44, 0)),
    Part.LineSegment(V(9, -44, 0), V(9, -9, 0)),
    Part.LineSegment(V(9, -9, 0), V(44, -9, 0)),
    Part.LineSegment(V(44, -9, 0), V(44, 9, 0)),
    Part.LineSegment(V(44, 9, 0), V(9, 9, 0)),
    Part.LineSegment(V(9, 9, 0), V(9, 44, 0)),
    Part.LineSegment(V(9, 44, 0), V(-9, 44, 0)),
    Part.LineSegment(V(-9, 44, 0), V(-9, 9, 0)),
    Part.LineSegment(V(-9, 9, 0), V(-44, 9, 0)),
], False)
sketch15.addConstraint([
    Sketcher.Constraint("Coincident", 0, 2, 1, 1),
    Sketcher.Constraint("Coincident", 1, 2, 2, 1),
    Sketcher.Constraint("Coincident", 2, 2, 3, 1),
    Sketcher.Constraint("Coincident", 3, 2, 4, 1),
    Sketcher.Constraint("Coincident", 4, 2, 5, 1),
    Sketcher.Constraint("Coincident", 5, 2, 6, 1),
    Sketcher.Constraint("Coincident", 6, 2, 7, 1),
    Sketcher.Constraint("Coincident", 7, 2, 8, 1),
    Sketcher.Constraint("Coincident", 8, 2, 9, 1),
    Sketcher.Constraint("Coincident", 9, 2, 10, 1),
    Sketcher.Constraint("Coincident", 10, 2, 11, 1),
    Sketcher.Constraint("Coincident", 11, 2, 0, 1),
    Sketcher.Constraint("Vertical", 0),
    Sketcher.Constraint("Horizontal", 1),
    Sketcher.Constraint("Vertical", 2),
    Sketcher.Constraint("Horizontal", 3),
    Sketcher.Constraint("Vertical", 4),
    Sketcher.Constraint("Horizontal", 5),
    Sketcher.Constraint("Vertical", 6),
    Sketcher.Constraint("Horizontal", 7),
    Sketcher.Constraint("Vertical", 8),
    Sketcher.Constraint("Horizontal", 9),
    Sketcher.Constraint("Vertical", 10),
    Sketcher.Constraint("Horizontal", 11),
    Sketcher.Constraint("Symmetric", 0, 2, 6, 2, -1, 1),
    Sketcher.Constraint("Symmetric", 2, 2, 8, 2, -1, 1),
    Sketcher.Constraint("Symmetric", 4, 2, 10, 2, -1, 1),
    Sketcher.Constraint("Symmetric", 1, 2, 4, 2, -2),
    Sketcher.Constraint("Equal", 9, 0),
    Sketcher.Constraint("Equal", 11, 2),
    Sketcher.Constraint("DistanceX", 1, 1, 1, 2, Q("35 mm")),
    Sketcher.Constraint("DistanceX", 3, 1, 3, 2, Q("18 mm")),
])
pocket9 = body.newObject("PartDesign::Pocket", "Pocket008")
pocket9.Profile = sketch15
pocket9.Length = 50

doc.recompute()
